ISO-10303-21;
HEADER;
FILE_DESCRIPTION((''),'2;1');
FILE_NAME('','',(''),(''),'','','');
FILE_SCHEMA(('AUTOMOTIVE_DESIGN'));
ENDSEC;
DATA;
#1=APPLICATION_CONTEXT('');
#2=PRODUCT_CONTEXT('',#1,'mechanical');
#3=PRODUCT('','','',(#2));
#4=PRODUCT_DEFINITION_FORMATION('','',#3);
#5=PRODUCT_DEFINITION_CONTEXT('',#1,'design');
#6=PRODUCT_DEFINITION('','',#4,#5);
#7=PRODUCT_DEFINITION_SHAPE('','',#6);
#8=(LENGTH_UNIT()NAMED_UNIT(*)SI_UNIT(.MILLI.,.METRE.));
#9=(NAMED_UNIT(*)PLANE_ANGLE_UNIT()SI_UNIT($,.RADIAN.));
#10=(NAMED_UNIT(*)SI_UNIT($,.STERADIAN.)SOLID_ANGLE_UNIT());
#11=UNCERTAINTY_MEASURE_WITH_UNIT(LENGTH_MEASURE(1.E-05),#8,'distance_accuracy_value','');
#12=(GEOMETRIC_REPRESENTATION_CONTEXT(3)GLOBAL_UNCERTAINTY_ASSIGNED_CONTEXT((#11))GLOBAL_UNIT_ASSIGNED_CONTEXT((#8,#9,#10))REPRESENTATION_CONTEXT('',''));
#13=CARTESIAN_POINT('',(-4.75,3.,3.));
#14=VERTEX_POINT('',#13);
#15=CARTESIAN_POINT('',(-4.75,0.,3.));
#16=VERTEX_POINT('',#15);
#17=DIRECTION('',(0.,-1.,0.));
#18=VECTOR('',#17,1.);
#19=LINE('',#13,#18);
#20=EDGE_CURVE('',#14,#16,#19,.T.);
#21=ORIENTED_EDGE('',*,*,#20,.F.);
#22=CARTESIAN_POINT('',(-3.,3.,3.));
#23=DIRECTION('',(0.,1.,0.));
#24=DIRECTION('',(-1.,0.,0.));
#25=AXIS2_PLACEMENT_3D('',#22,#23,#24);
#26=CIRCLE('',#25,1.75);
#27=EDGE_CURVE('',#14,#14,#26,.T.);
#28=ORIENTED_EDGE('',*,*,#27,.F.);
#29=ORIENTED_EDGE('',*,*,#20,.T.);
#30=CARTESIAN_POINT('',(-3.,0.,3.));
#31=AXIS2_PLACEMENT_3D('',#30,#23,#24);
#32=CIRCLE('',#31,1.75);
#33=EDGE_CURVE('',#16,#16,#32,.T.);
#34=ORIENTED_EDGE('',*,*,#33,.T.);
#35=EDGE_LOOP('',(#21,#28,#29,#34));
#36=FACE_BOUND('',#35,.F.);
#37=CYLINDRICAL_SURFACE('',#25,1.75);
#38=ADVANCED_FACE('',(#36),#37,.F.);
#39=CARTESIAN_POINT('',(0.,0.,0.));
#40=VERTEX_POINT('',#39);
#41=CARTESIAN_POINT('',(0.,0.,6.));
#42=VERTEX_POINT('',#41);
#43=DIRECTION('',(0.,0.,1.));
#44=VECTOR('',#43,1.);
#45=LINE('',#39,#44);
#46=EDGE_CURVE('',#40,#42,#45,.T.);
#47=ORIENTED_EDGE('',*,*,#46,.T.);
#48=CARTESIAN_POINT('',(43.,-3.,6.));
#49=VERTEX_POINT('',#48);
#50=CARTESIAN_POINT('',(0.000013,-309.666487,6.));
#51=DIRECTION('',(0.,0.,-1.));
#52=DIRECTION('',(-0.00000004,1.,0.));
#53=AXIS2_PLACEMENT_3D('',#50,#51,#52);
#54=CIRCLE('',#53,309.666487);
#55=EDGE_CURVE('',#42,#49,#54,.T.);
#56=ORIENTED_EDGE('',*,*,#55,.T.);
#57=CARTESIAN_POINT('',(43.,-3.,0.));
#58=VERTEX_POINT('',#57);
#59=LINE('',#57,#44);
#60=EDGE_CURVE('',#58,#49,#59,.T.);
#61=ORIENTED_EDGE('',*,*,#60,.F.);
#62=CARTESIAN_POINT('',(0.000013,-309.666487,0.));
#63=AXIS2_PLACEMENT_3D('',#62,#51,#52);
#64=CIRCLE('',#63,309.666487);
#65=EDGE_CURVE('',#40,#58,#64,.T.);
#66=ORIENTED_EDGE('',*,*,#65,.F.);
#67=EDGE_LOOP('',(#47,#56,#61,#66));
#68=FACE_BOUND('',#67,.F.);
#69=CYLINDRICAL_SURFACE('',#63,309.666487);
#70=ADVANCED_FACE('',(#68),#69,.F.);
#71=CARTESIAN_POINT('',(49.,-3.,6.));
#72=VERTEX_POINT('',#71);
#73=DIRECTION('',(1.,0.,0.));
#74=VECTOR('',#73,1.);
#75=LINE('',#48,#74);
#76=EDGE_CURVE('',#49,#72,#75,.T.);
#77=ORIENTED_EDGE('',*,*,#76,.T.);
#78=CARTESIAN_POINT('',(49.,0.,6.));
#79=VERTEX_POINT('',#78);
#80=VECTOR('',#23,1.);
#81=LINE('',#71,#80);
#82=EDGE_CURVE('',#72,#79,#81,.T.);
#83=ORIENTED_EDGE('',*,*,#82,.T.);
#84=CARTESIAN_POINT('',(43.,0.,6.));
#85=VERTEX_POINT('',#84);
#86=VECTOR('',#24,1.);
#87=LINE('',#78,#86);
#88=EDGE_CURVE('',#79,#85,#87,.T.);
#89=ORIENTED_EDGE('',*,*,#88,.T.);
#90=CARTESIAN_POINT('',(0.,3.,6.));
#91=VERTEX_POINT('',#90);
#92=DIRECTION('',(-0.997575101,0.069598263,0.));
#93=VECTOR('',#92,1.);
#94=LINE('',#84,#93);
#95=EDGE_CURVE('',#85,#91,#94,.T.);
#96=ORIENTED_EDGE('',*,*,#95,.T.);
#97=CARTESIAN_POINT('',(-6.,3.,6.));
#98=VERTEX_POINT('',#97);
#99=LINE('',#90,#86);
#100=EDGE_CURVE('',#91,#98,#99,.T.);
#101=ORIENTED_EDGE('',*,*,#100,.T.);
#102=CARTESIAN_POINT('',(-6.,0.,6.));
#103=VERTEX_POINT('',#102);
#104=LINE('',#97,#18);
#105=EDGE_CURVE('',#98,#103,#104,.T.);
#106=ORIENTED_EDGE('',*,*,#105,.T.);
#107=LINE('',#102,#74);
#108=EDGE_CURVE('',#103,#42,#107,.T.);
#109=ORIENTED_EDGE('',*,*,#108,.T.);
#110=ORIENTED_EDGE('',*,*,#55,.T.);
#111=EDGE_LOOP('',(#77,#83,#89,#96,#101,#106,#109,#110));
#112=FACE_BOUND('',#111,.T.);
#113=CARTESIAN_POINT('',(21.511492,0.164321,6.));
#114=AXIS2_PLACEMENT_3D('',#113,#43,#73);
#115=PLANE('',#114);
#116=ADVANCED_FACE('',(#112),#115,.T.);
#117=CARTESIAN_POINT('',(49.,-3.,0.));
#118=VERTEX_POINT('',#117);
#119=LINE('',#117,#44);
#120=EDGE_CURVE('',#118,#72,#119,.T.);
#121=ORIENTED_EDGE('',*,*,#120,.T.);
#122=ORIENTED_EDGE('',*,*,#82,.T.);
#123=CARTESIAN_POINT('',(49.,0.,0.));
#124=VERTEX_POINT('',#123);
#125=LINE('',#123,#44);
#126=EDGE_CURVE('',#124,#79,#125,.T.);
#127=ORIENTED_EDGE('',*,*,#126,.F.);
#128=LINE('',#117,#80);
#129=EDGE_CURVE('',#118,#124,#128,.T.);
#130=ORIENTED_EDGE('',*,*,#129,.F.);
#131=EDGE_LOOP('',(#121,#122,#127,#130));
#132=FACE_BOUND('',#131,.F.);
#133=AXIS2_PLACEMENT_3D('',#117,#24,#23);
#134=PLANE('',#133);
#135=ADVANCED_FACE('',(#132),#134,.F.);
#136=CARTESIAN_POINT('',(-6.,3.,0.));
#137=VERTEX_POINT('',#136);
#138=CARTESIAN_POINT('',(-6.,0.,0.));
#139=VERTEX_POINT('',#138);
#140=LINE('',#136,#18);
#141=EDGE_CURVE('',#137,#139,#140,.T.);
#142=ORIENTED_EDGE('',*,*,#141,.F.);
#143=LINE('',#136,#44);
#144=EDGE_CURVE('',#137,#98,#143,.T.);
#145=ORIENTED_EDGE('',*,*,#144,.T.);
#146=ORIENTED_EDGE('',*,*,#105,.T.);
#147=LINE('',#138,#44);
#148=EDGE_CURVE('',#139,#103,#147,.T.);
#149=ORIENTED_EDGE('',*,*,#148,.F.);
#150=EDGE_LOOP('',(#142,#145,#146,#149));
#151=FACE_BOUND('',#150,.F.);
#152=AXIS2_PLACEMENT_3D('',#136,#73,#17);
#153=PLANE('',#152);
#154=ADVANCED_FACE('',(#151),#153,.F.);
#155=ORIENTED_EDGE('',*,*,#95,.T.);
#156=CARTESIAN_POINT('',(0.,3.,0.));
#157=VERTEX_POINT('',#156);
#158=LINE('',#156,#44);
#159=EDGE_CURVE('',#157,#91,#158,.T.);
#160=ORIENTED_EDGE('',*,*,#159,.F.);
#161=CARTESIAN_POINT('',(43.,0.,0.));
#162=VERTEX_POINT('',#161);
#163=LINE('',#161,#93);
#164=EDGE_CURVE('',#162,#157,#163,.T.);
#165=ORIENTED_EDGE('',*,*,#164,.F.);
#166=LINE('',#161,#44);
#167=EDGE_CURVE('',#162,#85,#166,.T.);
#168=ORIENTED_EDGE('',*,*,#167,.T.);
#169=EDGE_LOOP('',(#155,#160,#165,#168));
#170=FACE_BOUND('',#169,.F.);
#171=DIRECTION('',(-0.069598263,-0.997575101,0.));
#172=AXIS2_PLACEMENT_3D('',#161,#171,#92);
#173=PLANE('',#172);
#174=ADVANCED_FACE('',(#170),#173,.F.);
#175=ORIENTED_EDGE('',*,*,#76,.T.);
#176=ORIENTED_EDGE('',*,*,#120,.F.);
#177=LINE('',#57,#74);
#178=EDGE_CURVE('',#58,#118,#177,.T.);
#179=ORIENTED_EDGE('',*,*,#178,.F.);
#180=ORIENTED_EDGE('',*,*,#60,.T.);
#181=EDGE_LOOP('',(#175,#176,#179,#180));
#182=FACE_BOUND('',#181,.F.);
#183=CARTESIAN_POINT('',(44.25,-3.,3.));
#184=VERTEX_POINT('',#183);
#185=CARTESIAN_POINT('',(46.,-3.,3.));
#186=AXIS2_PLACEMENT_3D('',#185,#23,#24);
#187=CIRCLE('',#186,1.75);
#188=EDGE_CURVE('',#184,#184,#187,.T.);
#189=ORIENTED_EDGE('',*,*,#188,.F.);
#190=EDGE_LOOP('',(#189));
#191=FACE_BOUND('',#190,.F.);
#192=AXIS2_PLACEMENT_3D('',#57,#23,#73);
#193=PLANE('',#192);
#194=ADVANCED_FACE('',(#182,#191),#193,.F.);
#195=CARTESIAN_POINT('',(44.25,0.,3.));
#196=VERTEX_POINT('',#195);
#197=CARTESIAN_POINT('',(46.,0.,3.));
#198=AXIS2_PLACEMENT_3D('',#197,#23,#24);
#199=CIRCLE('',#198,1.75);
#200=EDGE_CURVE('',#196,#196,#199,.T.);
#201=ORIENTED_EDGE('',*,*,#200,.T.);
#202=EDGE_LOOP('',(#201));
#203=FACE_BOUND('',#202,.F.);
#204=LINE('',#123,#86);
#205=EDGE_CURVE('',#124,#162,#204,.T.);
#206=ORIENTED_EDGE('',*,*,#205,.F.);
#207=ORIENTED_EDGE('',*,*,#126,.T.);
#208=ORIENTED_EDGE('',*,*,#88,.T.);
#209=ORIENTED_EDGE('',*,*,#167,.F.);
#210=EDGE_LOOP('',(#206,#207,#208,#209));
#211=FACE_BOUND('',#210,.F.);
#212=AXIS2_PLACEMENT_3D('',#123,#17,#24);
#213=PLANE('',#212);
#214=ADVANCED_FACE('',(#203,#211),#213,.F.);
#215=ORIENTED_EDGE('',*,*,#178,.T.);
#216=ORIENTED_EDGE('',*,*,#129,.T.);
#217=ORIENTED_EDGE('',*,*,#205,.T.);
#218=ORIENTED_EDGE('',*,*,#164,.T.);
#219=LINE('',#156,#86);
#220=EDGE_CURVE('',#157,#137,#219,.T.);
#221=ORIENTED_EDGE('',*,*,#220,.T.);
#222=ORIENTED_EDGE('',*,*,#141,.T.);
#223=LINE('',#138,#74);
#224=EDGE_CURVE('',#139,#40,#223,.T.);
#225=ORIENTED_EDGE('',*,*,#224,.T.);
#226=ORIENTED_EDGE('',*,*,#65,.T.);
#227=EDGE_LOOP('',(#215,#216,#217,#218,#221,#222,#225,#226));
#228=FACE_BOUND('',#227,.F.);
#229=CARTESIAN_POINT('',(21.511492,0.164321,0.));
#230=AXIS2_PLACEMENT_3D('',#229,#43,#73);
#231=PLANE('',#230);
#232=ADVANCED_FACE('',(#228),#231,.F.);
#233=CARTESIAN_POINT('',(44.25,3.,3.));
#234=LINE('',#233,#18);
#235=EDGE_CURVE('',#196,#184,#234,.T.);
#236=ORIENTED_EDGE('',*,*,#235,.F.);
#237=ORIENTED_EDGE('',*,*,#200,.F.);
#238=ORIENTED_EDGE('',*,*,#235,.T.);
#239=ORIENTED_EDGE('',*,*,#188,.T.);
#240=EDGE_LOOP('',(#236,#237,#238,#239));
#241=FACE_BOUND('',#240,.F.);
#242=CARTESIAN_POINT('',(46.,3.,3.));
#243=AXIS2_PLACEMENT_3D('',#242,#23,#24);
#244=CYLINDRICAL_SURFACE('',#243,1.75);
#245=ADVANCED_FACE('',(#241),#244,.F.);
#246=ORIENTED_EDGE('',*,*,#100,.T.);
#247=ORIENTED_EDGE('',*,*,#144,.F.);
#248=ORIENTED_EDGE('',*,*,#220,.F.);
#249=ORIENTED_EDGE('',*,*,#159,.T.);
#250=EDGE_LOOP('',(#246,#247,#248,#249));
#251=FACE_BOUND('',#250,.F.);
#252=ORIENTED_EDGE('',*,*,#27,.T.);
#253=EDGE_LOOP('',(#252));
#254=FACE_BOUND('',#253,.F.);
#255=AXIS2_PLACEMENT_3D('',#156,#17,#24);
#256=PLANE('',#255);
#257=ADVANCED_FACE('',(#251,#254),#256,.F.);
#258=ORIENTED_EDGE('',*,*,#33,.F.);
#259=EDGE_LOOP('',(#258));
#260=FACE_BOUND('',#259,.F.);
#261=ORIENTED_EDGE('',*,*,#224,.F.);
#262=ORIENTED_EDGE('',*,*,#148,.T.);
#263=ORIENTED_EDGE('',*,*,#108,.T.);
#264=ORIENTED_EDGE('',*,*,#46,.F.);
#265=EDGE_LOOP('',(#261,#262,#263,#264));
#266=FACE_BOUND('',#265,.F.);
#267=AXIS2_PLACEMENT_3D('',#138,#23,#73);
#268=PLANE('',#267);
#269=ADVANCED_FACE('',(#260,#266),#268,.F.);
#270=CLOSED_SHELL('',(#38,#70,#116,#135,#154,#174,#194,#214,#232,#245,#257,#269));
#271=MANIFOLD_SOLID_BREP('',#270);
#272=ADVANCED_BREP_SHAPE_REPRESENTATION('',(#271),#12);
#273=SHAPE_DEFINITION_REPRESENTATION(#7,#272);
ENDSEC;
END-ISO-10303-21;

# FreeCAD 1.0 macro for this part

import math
import FreeCAD as App
import Part
import Sketcher

V = App.Vector

doc = App.newDocument("Part")
params = doc.addObject("Spreadsheet::Sheet", "Params")
for row, (alias, value) in enumerate([
    ("sketch1_width", "6 mm"),
    ("sketch1_width2", "6 mm"),
    ("sketch1_width3", "6 mm"),
    ("sketch1_height", "3 mm"),
    ("sketch1_height2", "3 mm"),
    ("pad1_length", "6 mm"),
    ("sketch2_diameter", "3.5 mm"),
], start=1):
    params.set(f"A{row}", alias)
    params.set(f"B{row}", "=" + value)
    params.setAlias(f"B{row}", alias)

body = doc.addObject("PartDesign::Body", "Body")

# Sketch on XY plane
sketch1 = body.newObject("Sketcher::SketchObject", "Sketch")
sketch1.AttachmentSupport = (doc.getObject("XY_Plane"), [""])
sketch1.MapMode = "FlatFace"
sketch1.addGeometry(Part.ArcOfCircle(Part.Circle(V(0.000013, -309.666487, 0), V(0, 0, 1), 309.666487), math.radians(82.018171), math.radians(90.000002)), False)
sketch1.addGeometry(Part.LineSegment(V(43, -3, 0), V(49, -3, 0)), False)
sketch1.addGeometry(Part.LineSegment(V(49, -3, 0), V(49, 0, 0)), False)
sketch1.addGeometry(Part.LineSegment(V(49, 0, 0), V(43, 0, 0)), False)
sketch1.addGeometry(Part.LineSegment(V(43, 0, 0), V(0, 3, 0)), False)
sketch1.addGeometry(Part.LineSegment(V(0, 3, 0), V(-6, 3, 0)), False)
sketch1.addGeometry(Part.LineSegment(V(-6, 3, 0), V(-6, 0, 0)), False)
sketch1.addGeometry(Part.LineSegment(V(-6, 0, 0), V(0, 0, 0)), False)
sketch1.addConstraint(Sketcher.Constraint("Coincident", 0, 1, 1, 1))
sketch1.addConstraint(Sketcher.Constraint("Coincident", 1, 2, 2, 1))
sketch1.addConstraint(Sketcher.Constraint("Coincident", 2, 2, 3, 1))
sketch1.addConstraint(Sketcher.Constraint("Coincident", 3, 2, 4, 1))
sketch1.addConstraint(Sketcher.Constraint("Coincident", 4, 2, 5, 1))
sketch1.addConstraint(Sketcher.Constraint("Coincident", 5, 2, 6, 1))
sketch1.addConstraint(Sketcher.Constraint("Coincident", 6, 2, 7, 1))
sketch1.addConstraint(Sketcher.Constraint("Coincident", 7, 2, 0, 2))
sketch1.addConstraint(Sketcher.Constraint("Horizontal", 1))
sketch1.addConstraint(Sketcher.Constraint("Vertical", 2))
sketch1.addConstraint(Sketcher.Constraint("Horizontal", 3))
sketch1.addConstraint(Sketcher.Constraint("Horizontal", 5))
sketch1.addConstraint(Sketcher.Constraint("Vertical", 6))
sketch1.addConstraint(Sketcher.Constraint("Horizontal", 7))
sketch1.addConstraint(Sketcher.Constraint("Coincident", 7, 2, -1, 1))
sketch1.addConstraint(Sketcher.Constraint("PointOnObject", 2, 2, -1))
sketch1.addConstraint(Sketcher.Constraint("PointOnObject", 4, 2, -2))
sketch1.addConstraint(Sketcher.Constraint("DistanceX", 1, 1, 1, 2, 6.0))
sketch1.addConstraint(Sketcher.Constraint("DistanceX", 3, 2, 3, 1, 6.0))
sketch1.addConstraint(Sketcher.Constraint("DistanceX", 5, 2, 5, 1, 6.0))
sketch1.addConstraint(Sketcher.Constraint("DistanceY", 2, 1, 2, 2, 3.0))
sketch1.addConstraint(Sketcher.Constraint("DistanceY", 6, 2, 6, 1, 3.0))
sketch1.addConstraint(Sketcher.Constraint("DistanceX", -1, 1, 1, 2, 49.0))
sketch1.addConstraint(Sketcher.Constraint("Radius", 0, 309.666487))
sketch1.setExpression("Constraints[17]", "Params.sketch1_width")
sketch1.setExpression("Constraints[18]", "Params.sketch1_width2")
sketch1.setExpression("Constraints[19]", "Params.sketch1_width3")
sketch1.setExpression("Constraints[20]", "Params.sketch1_height")
sketch1.setExpression("Constraints[21]", "Params.sketch1_height2")
pad1 = body.newObject("PartDesign::Pad", "Pad")
pad1.Profile = sketch1
pad1.setExpression("Length", "Params.pad1_length")

# Sketch on XZ plane
sketch2 = body.newObject("Sketcher::SketchObject", "Sketch001")
sketch2.AttachmentSupport = (doc.getObject("XZ_Plane"), [""])
sketch2.MapMode = "FlatFace"
sketch2.AttachmentOffset = App.Placement(V(0, 0, -3), App.Rotation())
sketch2.addGeometry(Part.Circle(V(-3, 3, 0), V(0, 0, 1), 1.8), False)
sketch2.addGeometry(Part.Circle(V(46, 3, 0), V(0, 0, 1), 1.8), False)
sketch2.addConstraint(Sketcher.Constraint("Equal", 0, 1))
sketch2.addConstraint(Sketcher.Constraint("Horizontal", 0, 3, 1, 3))
sketch2.addConstraint(Sketcher.Constraint("Diameter", 0, 3.5))
sketch2.addConstraint(Sketcher.Constraint("DistanceX", 0, 3, -1, 1, 3.0))
sketch2.addConstraint(Sketcher.Constraint("DistanceY", -1, 1, 0, 3, 3.0))
sketch2.addConstraint(Sketcher.Constraint("DistanceX", -1, 1, 1, 3, 46.0))
sketch2.setExpression("Constraints[2]", "Params.sketch2_diameter")
pocket1 = body.newObject("PartDesign::Pocket", "Pocket")
pocket1.Profile = sketch2
pocket1.Type = "ThroughAll"
pocket1.Reversed = True

doc.recompute()
